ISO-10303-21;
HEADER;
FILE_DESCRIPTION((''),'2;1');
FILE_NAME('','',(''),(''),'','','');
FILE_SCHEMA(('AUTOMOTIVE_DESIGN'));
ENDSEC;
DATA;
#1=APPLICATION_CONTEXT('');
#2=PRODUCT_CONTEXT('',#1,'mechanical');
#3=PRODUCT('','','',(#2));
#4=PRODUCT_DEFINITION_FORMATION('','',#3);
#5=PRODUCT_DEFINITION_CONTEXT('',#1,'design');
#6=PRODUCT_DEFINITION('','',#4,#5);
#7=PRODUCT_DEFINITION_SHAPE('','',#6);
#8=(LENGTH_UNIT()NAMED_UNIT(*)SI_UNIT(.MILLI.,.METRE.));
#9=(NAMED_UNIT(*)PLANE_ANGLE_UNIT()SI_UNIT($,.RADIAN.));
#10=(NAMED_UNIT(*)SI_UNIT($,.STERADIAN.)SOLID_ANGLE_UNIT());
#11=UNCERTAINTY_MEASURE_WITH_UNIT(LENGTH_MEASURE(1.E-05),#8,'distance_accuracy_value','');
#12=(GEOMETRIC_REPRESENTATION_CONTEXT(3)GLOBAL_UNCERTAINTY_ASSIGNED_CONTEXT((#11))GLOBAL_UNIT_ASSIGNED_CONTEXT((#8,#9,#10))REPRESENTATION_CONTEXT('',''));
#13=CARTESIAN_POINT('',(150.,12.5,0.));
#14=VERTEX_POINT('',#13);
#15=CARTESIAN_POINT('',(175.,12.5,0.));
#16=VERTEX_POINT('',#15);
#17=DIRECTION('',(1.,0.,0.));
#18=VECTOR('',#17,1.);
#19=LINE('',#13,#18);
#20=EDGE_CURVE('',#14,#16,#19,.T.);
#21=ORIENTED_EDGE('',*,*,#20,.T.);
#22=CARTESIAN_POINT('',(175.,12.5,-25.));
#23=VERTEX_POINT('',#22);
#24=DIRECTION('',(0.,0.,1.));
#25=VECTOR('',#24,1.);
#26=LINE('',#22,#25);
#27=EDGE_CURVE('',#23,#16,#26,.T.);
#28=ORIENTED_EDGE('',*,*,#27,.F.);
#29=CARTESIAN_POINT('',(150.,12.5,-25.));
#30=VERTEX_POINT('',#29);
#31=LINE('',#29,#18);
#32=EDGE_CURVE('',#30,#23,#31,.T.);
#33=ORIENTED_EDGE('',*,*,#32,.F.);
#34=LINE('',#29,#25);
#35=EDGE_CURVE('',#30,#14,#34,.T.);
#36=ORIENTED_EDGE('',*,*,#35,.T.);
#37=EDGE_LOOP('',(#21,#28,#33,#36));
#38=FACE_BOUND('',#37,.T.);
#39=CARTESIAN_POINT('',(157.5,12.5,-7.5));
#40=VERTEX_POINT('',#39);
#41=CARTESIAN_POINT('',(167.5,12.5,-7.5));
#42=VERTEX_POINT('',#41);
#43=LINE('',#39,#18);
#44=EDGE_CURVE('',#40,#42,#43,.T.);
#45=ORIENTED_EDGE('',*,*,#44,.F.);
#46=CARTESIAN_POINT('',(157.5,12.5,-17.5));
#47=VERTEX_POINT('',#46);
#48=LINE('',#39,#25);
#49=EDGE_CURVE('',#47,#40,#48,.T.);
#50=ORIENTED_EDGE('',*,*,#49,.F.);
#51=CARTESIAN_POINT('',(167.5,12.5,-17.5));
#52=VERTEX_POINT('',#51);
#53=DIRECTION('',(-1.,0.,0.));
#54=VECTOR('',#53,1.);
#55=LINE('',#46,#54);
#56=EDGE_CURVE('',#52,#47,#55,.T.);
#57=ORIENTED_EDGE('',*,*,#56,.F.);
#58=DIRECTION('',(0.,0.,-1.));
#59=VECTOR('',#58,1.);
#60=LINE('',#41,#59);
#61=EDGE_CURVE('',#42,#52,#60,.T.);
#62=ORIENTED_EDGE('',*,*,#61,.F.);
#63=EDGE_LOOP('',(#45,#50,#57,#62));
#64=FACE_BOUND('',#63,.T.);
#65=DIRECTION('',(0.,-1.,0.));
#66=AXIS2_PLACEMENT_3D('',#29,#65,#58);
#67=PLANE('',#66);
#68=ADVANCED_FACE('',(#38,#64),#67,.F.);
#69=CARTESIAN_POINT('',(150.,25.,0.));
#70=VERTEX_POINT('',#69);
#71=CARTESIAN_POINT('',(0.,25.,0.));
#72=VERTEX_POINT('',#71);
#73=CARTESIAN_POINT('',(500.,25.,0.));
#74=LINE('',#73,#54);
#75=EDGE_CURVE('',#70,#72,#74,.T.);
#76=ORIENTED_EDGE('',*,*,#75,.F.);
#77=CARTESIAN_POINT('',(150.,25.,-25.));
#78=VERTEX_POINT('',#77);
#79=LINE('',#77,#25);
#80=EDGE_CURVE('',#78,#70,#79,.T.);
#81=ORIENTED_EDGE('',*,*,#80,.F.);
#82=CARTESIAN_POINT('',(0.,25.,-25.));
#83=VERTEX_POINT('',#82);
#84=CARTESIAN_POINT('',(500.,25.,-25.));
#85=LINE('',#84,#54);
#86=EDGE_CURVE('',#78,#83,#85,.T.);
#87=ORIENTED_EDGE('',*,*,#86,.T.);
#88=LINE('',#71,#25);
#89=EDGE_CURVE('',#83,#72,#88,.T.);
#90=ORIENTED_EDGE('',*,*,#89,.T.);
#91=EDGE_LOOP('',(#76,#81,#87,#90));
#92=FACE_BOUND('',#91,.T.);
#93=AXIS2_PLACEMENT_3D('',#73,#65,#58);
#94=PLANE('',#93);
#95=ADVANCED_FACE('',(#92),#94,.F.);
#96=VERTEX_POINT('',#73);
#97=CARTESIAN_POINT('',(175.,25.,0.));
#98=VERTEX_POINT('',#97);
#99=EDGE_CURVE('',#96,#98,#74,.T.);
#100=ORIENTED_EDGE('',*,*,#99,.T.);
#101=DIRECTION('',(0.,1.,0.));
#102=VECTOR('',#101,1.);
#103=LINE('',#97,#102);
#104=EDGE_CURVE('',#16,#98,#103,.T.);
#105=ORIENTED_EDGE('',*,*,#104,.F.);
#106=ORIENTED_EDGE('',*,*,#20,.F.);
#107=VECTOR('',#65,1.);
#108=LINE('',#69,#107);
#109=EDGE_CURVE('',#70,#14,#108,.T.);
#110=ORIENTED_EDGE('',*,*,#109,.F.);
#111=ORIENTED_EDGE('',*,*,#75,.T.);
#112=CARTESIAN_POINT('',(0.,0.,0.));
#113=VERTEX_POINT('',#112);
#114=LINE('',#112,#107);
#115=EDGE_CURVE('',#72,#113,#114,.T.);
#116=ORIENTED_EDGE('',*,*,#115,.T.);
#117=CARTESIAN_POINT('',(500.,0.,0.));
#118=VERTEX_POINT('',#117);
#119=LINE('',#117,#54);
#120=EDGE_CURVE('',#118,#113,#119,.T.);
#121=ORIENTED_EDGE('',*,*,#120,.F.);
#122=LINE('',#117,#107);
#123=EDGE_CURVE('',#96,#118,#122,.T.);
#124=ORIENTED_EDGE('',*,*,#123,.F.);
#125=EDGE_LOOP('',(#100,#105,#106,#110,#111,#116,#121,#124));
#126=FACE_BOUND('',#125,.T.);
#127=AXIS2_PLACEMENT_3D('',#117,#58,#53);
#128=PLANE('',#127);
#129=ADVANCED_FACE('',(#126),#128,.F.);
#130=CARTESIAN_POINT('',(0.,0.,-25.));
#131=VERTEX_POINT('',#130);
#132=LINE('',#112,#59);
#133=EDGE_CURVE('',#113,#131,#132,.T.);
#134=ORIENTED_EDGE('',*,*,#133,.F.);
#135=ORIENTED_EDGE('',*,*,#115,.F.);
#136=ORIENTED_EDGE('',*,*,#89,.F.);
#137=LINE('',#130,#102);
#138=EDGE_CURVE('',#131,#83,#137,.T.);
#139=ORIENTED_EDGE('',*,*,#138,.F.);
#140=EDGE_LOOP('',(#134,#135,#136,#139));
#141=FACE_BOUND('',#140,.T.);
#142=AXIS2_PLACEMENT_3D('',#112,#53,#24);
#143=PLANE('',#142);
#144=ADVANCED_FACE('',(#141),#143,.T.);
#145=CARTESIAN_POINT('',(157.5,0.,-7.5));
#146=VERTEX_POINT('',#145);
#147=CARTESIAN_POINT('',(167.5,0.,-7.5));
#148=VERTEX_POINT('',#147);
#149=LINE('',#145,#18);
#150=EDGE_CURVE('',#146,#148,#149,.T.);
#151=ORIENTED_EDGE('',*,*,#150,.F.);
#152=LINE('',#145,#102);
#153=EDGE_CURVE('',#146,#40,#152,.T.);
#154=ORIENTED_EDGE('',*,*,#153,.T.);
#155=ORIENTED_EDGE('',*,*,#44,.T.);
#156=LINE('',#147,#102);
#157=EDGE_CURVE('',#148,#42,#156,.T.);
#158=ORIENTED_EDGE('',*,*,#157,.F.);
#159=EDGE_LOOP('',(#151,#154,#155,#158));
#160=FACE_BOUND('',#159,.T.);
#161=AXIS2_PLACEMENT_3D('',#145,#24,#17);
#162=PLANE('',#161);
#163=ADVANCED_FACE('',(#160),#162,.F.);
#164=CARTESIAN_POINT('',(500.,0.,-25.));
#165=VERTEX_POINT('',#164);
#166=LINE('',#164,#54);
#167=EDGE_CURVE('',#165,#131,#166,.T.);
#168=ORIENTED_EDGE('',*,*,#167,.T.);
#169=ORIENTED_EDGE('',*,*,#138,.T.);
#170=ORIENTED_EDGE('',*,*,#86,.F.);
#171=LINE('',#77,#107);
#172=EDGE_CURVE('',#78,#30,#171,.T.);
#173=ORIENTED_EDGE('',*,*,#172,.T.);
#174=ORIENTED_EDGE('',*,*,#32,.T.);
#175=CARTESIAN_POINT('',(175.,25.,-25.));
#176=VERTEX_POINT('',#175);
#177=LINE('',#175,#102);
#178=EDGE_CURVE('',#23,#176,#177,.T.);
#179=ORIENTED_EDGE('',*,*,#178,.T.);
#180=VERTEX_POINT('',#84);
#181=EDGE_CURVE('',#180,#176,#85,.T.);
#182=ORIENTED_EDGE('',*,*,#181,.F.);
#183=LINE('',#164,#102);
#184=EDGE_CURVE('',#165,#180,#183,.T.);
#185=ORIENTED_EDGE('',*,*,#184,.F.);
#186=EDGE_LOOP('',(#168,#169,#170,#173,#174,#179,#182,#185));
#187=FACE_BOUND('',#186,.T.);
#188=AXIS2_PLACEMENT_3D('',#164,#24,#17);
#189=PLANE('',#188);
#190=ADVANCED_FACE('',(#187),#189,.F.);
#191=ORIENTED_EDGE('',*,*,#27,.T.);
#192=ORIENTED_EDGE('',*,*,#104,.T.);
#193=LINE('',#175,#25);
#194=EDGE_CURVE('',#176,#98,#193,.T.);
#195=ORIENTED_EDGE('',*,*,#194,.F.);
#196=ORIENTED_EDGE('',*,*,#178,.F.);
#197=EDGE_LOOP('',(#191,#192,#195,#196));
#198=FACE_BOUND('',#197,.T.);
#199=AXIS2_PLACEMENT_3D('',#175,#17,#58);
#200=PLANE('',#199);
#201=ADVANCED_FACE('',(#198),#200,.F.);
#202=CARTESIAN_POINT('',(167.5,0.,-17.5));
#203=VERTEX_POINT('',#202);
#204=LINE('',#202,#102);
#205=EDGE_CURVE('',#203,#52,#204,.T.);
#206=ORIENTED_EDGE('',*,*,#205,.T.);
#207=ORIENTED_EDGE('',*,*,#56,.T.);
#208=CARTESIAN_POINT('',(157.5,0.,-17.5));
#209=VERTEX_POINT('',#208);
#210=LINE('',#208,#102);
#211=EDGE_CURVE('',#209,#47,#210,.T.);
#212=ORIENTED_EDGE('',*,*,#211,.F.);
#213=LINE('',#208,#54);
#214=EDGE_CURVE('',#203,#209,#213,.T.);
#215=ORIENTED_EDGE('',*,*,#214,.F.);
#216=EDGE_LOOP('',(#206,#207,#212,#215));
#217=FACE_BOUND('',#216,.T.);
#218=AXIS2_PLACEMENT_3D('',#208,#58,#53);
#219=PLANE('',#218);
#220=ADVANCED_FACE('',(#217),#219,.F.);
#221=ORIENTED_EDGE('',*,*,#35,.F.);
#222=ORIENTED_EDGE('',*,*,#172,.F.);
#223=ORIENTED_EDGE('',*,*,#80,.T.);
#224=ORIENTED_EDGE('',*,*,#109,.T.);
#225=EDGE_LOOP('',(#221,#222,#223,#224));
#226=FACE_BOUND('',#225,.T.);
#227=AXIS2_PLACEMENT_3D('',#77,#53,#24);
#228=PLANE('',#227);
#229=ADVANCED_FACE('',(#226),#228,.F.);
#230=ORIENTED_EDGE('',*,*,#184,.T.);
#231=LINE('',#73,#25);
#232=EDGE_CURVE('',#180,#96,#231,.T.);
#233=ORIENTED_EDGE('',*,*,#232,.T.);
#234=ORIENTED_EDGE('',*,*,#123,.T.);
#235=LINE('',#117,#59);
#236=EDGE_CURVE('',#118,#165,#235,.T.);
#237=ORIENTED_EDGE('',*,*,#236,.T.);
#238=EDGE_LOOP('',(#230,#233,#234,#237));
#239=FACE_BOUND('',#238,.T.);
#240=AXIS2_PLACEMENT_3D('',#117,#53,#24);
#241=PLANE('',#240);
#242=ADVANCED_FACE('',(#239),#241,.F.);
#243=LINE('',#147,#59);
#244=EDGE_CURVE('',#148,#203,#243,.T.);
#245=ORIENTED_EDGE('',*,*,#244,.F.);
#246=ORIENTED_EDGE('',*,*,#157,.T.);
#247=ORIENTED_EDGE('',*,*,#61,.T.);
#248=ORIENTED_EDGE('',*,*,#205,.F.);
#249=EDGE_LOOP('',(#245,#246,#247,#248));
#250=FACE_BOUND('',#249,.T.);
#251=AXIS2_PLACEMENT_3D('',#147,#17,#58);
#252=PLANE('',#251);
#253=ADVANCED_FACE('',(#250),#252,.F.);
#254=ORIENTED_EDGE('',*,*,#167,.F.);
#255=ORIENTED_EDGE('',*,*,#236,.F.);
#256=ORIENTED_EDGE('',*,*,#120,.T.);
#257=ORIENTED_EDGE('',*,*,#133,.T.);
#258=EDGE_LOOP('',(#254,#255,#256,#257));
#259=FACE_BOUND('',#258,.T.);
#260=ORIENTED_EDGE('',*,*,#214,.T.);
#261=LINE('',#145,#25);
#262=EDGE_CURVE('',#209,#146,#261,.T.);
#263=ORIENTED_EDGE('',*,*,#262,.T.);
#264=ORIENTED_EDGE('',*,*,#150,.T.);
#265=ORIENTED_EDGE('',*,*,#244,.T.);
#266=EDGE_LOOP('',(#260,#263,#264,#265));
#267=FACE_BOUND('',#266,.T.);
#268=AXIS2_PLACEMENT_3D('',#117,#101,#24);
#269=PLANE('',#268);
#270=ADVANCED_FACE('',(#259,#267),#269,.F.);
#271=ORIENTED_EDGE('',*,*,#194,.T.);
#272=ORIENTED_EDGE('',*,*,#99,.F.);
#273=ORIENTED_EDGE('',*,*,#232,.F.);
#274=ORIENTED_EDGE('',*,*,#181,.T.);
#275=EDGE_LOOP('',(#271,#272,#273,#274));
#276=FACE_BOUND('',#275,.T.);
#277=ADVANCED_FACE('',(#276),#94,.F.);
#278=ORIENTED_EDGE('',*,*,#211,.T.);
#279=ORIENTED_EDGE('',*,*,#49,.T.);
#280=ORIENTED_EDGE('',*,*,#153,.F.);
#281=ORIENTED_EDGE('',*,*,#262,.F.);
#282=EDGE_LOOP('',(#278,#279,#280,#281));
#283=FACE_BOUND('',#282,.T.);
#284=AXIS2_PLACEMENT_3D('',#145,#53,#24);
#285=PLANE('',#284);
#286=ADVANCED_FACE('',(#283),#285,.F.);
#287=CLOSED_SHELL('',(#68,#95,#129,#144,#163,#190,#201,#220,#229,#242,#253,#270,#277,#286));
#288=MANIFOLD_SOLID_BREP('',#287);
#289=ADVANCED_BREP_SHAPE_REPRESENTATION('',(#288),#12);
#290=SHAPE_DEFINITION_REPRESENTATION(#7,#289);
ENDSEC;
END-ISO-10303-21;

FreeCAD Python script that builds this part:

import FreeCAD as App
import Part
import Sketcher

V = App.Vector

doc = App.newDocument("Part")
params = doc.addObject("Spreadsheet::Sheet", "Params")
for row, (alias, value) in enumerate([
    ("sketch1_width", "25 mm"),
    ("pad1_length", "500 mm"),
    ("sketch2_width", "25 mm"),
    ("sketch2_height", "12.5 mm"),
    ("sketch3_width", "10 mm"),
], start=1):
    params.set(f"A{row}", alias)
    params.set(f"B{row}", "=" + value)
    params.setAlias(f"B{row}", alias)

body = doc.addObject("PartDesign::Body", "Body")

sketch1 = doc.addObject("Sketcher::SketchObject", "Sketch")
body.addObject(sketch1)
sketch1.AttachmentSupport = (doc.YZ_Plane, [""])
sketch1.MapMode = "FlatFace"
sketch1.addGeometry(Part.LineSegment(V(25, 0, 0), V(0, 0, 0)), False)
sketch1.addGeometry(Part.LineSegment(V(0, 0, 0), V(0, -25, 0)), False)
sketch1.addGeometry(Part.LineSegment(V(0, -25, 0), V(25, -25, 0)), False)
sketch1.addGeometry(Part.LineSegment(V(25, -25, 0), V(25, 0, 0)), False)
sketch1.addConstraint(Sketcher.Constraint("Coincident", 0, 2, 1, 1))
sketch1.addConstraint(Sketcher.Constraint("Coincident", 1, 2, 2, 1))
sketch1.addConstraint(Sketcher.Constraint("Coincident", 2, 2, 3, 1))
sketch1.addConstraint(Sketcher.Constraint("Coincident", 3, 2, 0, 1))
sketch1.addConstraint(Sketcher.Constraint("Horizontal", 0))
sketch1.addConstraint(Sketcher.Constraint("Vertical", 1))
sketch1.addConstraint(Sketcher.Constraint("Horizontal", 2))
sketch1.addConstraint(Sketcher.Constraint("Vertical", 3))
sketch1.addConstraint(Sketcher.Constraint("Coincident", 0, 2, -1, 1))
sketch1.addConstraint(Sketcher.Constraint("Equal", 2, 1))
sketch1.addConstraint(Sketcher.Constraint("DistanceX", 0, 2, 0, 1, 25.0))
sketch1.setExpression("Constraints[10]", "Params.sketch1_width")
pad1 = doc.addObject("PartDesign::Pad", "Pad")
body.addObject(pad1)
pad1.Profile = sketch1
pad1.setExpression("Length", "Params.pad1_length")

sketch2 = doc.addObject("Sketcher::SketchObject", "Sketch001")
body.addObject(sketch2)
sketch2.AttachmentSupport = (doc.XY_Plane, [""])
sketch2.MapMode = "FlatFace"
sketch2.addGeometry(Part.LineSegment(V(150, 25, 0), V(150, 12, 0)), False)
sketch2.addGeometry(Part.LineSegment(V(150, 12, 0), V(175, 12, 0)), False)
sketch2.addGeometry(Part.LineSegment(V(175, 12, 0), V(175, 25, 0)), False)
sketch2.addGeometry(Part.LineSegment(V(175, 25, 0), V(150, 25, 0)), False)
sketch2.addConstraint(Sketcher.Constraint("Coincident", 0, 2, 1, 1))
sketch2.addConstraint(Sketcher.Constraint("Coincident", 1, 2, 2, 1))
sketch2.addConstraint(Sketcher.Constraint("Coincident", 2, 2, 3, 1))
sketch2.addConstraint(Sketcher.Constraint("Coincident", 3, 2, 0, 1))
sketch2.addConstraint(Sketcher.Constraint("Vertical", 0))
sketch2.addConstraint(Sketcher.Constraint("Horizontal", 1))
sketch2.addConstraint(Sketcher.Constraint("Vertical", 2))
sketch2.addConstraint(Sketcher.Constraint("Horizontal", 3))
sketch2.addConstraint(Sketcher.Constraint("DistanceX", 1, 1, 1, 2, 25.0))
sketch2.addConstraint(Sketcher.Constraint("DistanceY", 0, 2, 0, 1, 12.5))
sketch2.addConstraint(Sketcher.Constraint("DistanceX", -1, 1, 0, 2, 150.0))
sketch2.addConstraint(Sketcher.Constraint("DistanceY", -1, 1, 2, 2, 25.0))
sketch2.setExpression("Constraints[8]", "Params.sketch2_width")
sketch2.setExpression("Constraints[9]", "Params.sketch2_height")
pocket1 = doc.addObject("PartDesign::Pocket", "Pocket")
body.addObject(pocket1)
pocket1.Profile = sketch2
pocket1.Type = "ThroughAll"

sketch3 = doc.addObject("Sketcher::SketchObject", "Sketch002")
body.addObject(sketch3)
sketch3.AttachmentSupport = (doc.XZ_Plane, [""])
sketch3.MapMode = "FlatFace"
sketch3.AttachmentOffset = App.Placement(V(0, 0, -12.5), App.Rotation())
sketch3.addGeometry(Part.LineSegment(V(158, -18, 0), V(158, -8, 0)), False)
sketch3.addGeometry(Part.LineSegment(V(158, -8, 0), V(168, -8, 0)), False)
sketch3.addGeometry(Part.LineSegment(V(168, -8, 0), V(168, -18, 0)), False)
sketch3.addGeometry(Part.LineSegment(V(168, -18, 0), V(158, -18, 0)), False)
sketch3.addConstraint(Sketcher.Constraint("Coincident", 0, 2, 1, 1))
sketch3.addConstraint(Sketcher.Constraint("Coincident", 1, 2, 2, 1))
sketch3.addConstraint(Sketcher.Constraint("Coincident", 2, 2, 3, 1))
sketch3.addConstraint(Sketcher.Constraint("Coincident", 3, 2, 0, 1))
sketch3.addConstraint(Sketcher.Constraint("Vertical", 0))
sketch3.addConstraint(Sketcher.Constraint("Horizontal", 1))
sketch3.addConstraint(Sketcher.Constraint("Vertical", 2))
sketch3.addConstraint(Sketcher.Constraint("Horizontal", 3))
sketch3.addConstraint(Sketcher.Constraint("Equal", 3, 0))
sketch3.addConstraint(Sketcher.Constraint("DistanceX", 1, 1, 1, 2, 10.0))
sketch3.addConstraint(Sketcher.Constraint("DistanceX", -1, 1, 0, 2, 157.5))
sketch3.addConstraint(Sketcher.Constraint("DistanceY", 0, 2, -1, 1, 7.5))
sketch3.setExpression("Constraints[9]", "Params.sketch3_width")
pocket2 = doc.addObject("PartDesign::Pocket", "Pocket001")
body.addObject(pocket2)
pocket2.Profile = sketch3
pocket2.Type = "ThroughAll"
pocket2.Reversed = True

doc.recompute()
